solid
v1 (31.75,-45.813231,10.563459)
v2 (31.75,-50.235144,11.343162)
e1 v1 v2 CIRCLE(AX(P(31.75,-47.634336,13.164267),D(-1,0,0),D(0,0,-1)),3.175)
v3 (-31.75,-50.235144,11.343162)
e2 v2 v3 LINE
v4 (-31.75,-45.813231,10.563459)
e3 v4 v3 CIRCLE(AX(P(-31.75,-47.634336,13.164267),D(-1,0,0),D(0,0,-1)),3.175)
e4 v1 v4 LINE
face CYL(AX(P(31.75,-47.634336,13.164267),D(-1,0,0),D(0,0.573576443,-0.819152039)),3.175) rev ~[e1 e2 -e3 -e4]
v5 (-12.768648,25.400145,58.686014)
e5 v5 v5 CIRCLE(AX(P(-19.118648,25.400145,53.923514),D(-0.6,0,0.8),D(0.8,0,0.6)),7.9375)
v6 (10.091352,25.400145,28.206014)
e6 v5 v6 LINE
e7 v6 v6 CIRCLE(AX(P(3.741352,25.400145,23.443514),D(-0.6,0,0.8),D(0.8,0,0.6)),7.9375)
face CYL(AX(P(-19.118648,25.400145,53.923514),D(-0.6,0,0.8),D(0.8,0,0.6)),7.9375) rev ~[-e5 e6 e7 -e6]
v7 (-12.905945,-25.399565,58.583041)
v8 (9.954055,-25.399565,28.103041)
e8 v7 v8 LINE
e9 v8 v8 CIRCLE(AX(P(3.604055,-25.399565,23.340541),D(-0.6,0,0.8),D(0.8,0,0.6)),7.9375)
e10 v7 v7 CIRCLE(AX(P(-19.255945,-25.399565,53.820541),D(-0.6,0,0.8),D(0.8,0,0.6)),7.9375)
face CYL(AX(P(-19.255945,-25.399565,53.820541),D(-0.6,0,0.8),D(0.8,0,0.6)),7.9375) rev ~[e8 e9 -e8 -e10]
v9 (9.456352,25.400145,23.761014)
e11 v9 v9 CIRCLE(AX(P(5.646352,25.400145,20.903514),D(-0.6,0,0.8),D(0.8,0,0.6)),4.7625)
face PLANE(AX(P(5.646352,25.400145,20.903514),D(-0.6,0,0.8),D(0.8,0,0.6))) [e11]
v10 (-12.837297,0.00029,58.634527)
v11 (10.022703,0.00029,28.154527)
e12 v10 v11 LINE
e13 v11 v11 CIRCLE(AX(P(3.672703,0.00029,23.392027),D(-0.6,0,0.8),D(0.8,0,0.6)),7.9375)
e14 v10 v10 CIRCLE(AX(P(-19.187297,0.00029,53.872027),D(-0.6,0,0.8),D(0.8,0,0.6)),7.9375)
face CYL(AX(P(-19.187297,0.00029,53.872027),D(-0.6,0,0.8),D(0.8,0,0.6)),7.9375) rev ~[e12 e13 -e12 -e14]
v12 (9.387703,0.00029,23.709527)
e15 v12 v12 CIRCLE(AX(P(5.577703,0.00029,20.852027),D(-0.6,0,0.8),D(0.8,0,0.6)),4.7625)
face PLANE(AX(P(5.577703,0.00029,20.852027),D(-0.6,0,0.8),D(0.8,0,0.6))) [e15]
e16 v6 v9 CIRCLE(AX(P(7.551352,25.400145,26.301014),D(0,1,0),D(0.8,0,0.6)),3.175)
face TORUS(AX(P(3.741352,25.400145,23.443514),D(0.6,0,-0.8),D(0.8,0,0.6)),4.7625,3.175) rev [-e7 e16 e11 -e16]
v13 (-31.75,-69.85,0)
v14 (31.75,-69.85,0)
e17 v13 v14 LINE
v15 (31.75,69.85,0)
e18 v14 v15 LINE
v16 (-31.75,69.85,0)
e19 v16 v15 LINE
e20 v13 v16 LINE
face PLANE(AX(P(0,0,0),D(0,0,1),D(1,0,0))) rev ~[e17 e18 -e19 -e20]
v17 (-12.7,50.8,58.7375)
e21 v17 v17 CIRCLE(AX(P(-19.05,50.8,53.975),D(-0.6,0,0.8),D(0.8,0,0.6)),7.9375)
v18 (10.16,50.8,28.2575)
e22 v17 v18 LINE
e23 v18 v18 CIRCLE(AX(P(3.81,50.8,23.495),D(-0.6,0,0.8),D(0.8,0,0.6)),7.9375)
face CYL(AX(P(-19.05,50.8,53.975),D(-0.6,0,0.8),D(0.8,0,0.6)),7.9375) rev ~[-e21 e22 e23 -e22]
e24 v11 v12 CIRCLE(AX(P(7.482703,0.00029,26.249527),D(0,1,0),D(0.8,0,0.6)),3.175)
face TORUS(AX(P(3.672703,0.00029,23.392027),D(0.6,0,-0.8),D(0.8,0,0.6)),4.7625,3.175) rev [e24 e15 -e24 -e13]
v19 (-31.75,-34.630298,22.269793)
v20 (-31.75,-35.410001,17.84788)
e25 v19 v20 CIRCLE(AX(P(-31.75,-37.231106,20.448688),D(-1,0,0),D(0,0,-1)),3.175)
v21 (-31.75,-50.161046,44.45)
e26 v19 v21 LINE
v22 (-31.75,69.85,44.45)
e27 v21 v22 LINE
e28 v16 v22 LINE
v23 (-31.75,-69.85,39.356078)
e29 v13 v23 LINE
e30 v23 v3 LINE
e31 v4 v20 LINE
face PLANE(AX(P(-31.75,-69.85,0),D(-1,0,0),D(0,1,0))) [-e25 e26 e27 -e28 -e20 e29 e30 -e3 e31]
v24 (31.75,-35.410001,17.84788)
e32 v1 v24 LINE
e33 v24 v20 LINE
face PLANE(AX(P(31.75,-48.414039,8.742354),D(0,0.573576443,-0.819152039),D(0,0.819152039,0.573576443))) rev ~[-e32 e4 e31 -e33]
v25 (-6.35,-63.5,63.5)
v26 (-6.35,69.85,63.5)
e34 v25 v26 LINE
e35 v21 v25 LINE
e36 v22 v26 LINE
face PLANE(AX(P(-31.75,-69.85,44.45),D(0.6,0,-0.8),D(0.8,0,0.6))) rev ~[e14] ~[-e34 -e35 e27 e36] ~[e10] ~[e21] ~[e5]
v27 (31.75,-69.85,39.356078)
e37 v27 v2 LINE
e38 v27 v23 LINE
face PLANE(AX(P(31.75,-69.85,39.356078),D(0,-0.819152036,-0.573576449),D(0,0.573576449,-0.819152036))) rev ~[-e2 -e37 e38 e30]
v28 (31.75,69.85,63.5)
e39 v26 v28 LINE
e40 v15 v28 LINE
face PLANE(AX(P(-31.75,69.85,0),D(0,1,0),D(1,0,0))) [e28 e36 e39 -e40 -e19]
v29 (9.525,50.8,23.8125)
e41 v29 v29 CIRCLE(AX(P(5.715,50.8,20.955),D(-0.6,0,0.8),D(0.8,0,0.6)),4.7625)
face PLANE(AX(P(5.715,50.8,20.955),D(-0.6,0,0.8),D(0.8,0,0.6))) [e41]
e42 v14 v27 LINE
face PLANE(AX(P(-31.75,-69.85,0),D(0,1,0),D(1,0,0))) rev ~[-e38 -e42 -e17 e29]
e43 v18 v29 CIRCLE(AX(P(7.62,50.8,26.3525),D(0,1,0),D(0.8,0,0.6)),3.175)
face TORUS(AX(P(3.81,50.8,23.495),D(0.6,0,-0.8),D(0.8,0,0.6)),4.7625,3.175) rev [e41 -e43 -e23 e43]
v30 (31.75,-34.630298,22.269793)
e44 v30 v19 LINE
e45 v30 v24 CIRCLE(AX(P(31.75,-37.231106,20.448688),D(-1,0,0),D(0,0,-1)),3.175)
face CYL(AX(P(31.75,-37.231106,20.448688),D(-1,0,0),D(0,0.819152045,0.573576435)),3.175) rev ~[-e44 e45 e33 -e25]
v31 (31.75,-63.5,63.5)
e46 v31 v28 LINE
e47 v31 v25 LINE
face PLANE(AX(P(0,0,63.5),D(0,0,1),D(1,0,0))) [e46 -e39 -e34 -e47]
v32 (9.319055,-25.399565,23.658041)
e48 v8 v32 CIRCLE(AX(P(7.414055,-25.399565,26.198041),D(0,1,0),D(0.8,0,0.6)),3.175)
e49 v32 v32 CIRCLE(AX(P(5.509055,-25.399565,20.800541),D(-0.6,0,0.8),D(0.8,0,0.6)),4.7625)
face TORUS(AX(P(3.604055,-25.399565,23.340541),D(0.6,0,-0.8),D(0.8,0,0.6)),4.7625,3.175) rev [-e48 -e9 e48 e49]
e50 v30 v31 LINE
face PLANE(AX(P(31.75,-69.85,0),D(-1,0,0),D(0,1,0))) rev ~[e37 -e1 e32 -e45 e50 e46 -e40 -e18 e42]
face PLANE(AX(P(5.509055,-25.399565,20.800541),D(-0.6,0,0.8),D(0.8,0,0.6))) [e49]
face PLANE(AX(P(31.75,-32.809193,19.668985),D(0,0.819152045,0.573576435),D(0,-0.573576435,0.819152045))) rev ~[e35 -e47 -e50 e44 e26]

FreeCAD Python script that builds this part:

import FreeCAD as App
import Part
import Sketcher

V = App.Vector
Q = App.Units.Quantity


def edges_at(feature, points):
    """Names of the edges that pass closest to the given points."""
    edges = feature.Shape.Edges
    near = lambda p: min(range(len(edges)), key=lambda i: edges[i].distToShape(Part.Vertex(*p))[0])
    return sorted({f"Edge{near(p) + 1}" for p in points})

doc = App.newDocument("Part")
body = doc.addObject("PartDesign::Body", "Body")

# Sketch on XY plane
sketch1 = body.newObject("Sketcher::SketchObject", "Sketch")
sketch1.AttachmentSupport = (doc.getObject("XY_Plane"), [""])
sketch1.MapMode = "FlatFace"
sketch1.addGeometry(Part.LineSegment(V(-32, 70, 0), V(-32, -70, 0)), False)
sketch1.addGeometry(Part.LineSegment(V(-32, -70, 0), V(32, -70, 0)), False)
sketch1.addGeometry(Part.LineSegment(V(32, -70, 0), V(32, 70, 0)), False)
sketch1.addGeometry(Part.LineSegment(V(32, 70, 0), V(-32, 70, 0)), False)
sketch1.addConstraint(Sketcher.Constraint("Coincident", 0, 2, 1, 1))
sketch1.addConstraint(Sketcher.Constraint("Coincident", 1, 2, 2, 1))
sketch1.addConstraint(Sketcher.Constraint("Coincident", 2, 2, 3, 1))
sketch1.addConstraint(Sketcher.Constraint("Coincident", 3, 2, 0, 1))
sketch1.addConstraint(Sketcher.Constraint("Vertical", 0))
sketch1.addConstraint(Sketcher.Constraint("Horizontal", 1))
sketch1.addConstraint(Sketcher.Constraint("Vertical", 2))
sketch1.addConstraint(Sketcher.Constraint("Horizontal", 3))
sketch1.addConstraint(Sketcher.Constraint("Symmetric", 0, 2, 2, 2, -1, 1))
sketch1.addConstraint(Sketcher.Constraint("DistanceX", 1, 1, 1, 2, Q("2.5 in")))
sketch1.addConstraint(Sketcher.Constraint("DistanceY", 0, 2, 0, 1, Q("5.5 in")))
pad1 = body.newObject("PartDesign::Pad", "Pad")
pad1.Profile = sketch1
pad1.Length = Q("2.5 in")

# Sketch on XZ plane
sketch2 = body.newObject("Sketcher::SketchObject", "Sketch001")
sketch2.AttachmentSupport = (doc.getObject("XZ_Plane"), [""])
sketch2.MapMode = "FlatFace"
sketch2.AttachmentOffset = App.Placement(V(0, 0, 2.75 * 25.4), App.Rotation())
sketch2.addGeometry(Part.LineSegment(V(-32, 64, 0), V(-32, 44, 0)), False)
sketch2.addGeometry(Part.LineSegment(V(-32, 44, 0), V(-6, 64, 0)), False)
sketch2.addGeometry(Part.LineSegment(V(-6, 64, 0), V(-32, 64, 0)), False)
sketch2.addConstraint(Sketcher.Constraint("Coincident", 0, 2, 1, 1))
sketch2.addConstraint(Sketcher.Constraint("Coincident", 1, 2, 2, 1))
sketch2.addConstraint(Sketcher.Constraint("Coincident", 2, 2, 0, 1))
sketch2.addConstraint(Sketcher.Constraint("Vertical", 0))
sketch2.addConstraint(Sketcher.Constraint("Horizontal", 2))
sketch2.addConstraint(Sketcher.Constraint("DistanceX", 2, 2, 2, 1, Q("1 in")))
sketch2.addConstraint(Sketcher.Constraint("DistanceY", 0, 2, 0, 1, Q("0.75 in")))
sketch2.addConstraint(Sketcher.Constraint("DistanceY", -1, 1, 1, 2, Q("2.5 in")))
sketch2.addConstraint(Sketcher.Constraint("DistanceX", 0, 2, -1, 1, Q("1.25 in")))
pocket1 = body.newObject("PartDesign::Pocket", "Pocket")
pocket1.Profile = sketch2
pocket1.Type = "ThroughAll"

# Sketch on an angled plane
sketch3 = body.newObject("Sketcher::SketchObject", "Sketch002")
sketch3.Placement = App.Placement(V(-32.766, 0, 43.688), App.Rotation(V(0.8, 0, 0.6), V(0, 1, 0), V(-0.6, 0, 0.8), "ZXY"))
sketch3.addGeometry(Part.Circle(V(17, 51, 0), V(0, 0, 1), 8), False)
sketch3.addGeometry(Part.Circle(V(17, 25, 0), V(0, 0, 1), 8), False)
sketch3.addGeometry(Part.Circle(V(17, 0, 0), V(0, 0, 1), 8), False)
sketch3.addGeometry(Part.Circle(V(17, -25, 0), V(0, 0, 1), 8), False)
sketch3.addConstraint(Sketcher.Constraint("Equal", 0, 1))
sketch3.addConstraint(Sketcher.Constraint("Equal", 1, 2))
sketch3.addConstraint(Sketcher.Constraint("Equal", 2, 3))
sketch3.addConstraint(Sketcher.Constraint("Diameter", 0, Q("0.625 in")))
sketch3.addConstraint(Sketcher.Constraint("DistanceY", -1, 1, 0, 3, Q("2 in")))
sketch3.addConstraint(Sketcher.Constraint("DistanceX", -1, 1, 0, 3, Q("0.675 in")))
sketch3.addConstraint(Sketcher.Constraint("DistanceX", -1, 1, 1, 3, Q("17.05919 mm")))
sketch3.addConstraint(Sketcher.Constraint("DistanceX", -1, 1, 2, 3, Q("16.973379 mm")))
sketch3.addConstraint(Sketcher.Constraint("DistanceY", -1, 1, 2, 3, Q("0.00029 mm")))
sketch3.addConstraint(Sketcher.Constraint("DistanceX", -1, 1, 3, 3, Q("16.887569 mm")))
sketch3.addConstraint(Sketcher.Constraint("DistanceY", 3, 3, 1, 3, Q("50.79971 mm")))
sketch3.addConstraint(Sketcher.Constraint("DistanceY", -1, 1, 1, 3, Q("25.400145 mm")))
pocket2 = body.newObject("PartDesign::Pocket", "Pocket001")
pocket2.Profile = sketch3
pocket2.Length = Q("1.625 in")
doc.recompute()

fillet = body.newObject("PartDesign::Fillet", "Fillet")
fillet.Base = (pocket2, edges_at(pocket2, [
    (-0.841, -25.4, 16.038),
    (-0.772, 0, 16.09),
    (-0.704, 25.4, 16.141),
    (-0.635, 50.8, 16.192),
]))
fillet.Radius = Q("0.125 in")

# Sketch on YZ plane
sketch4 = body.newObject("Sketcher::SketchObject", "Sketch003")
sketch4.AttachmentSupport = (doc.getObject("YZ_Plane"), [""])
sketch4.MapMode = "FlatFace"
sketch4.AttachmentOffset = App.Placement(V(0, 0, 1.25 * 25.4), App.Rotation())
sketch4.addGeometry(Part.LineSegment(V(-70, 64, 0), V(-70, 39, 0)), False)
sketch4.addGeometry(Part.LineSegment(V(-70, 39, 0), V(-48, 9, 0)), False)
sketch4.addGeometry(Part.LineSegment(V(-48, 9, 0), V(-33, 20, 0)), False)
sketch4.addGeometry(Part.LineSegment(V(-33, 20, 0), V(-64, 64, 0)), False)
sketch4.addGeometry(Part.LineSegment(V(-64, 64, 0), V(-70, 64, 0)), False)
sketch4.addConstraint(Sketcher.Constraint("Coincident", 0, 2, 1, 1))
sketch4.addConstraint(Sketcher.Constraint("Coincident", 1, 2, 2, 1))
sketch4.addConstraint(Sketcher.Constraint("Coincident", 2, 2, 3, 1))
sketch4.addConstraint(Sketcher.Constraint("Coincident", 3, 2, 4, 1))
sketch4.addConstraint(Sketcher.Constraint("Coincident", 4, 2, 0, 1))
sketch4.addConstraint(Sketcher.Constraint("Vertical", 0))
sketch4.addConstraint(Sketcher.Constraint("Horizontal", 4))
sketch4.addConstraint(Sketcher.Constraint("Perpendicular", 1, 2))
sketch4.addConstraint(Sketcher.Constraint("Perpendicular", 2, 3))
sketch4.addConstraint(Sketcher.Constraint("Angle", 1, Q("-54.999999 deg")))
sketch4.addConstraint(Sketcher.Constraint("DistanceX", 4, 2, 4, 1, Q("0.25 in")))
sketch4.addConstraint(Sketcher.Constraint("DistanceX", 3, 2, -1, 1, Q("2.5 in")))
sketch4.addConstraint(Sketcher.Constraint("DistanceY", -1, 1, 3, 2, Q("2.5 in")))
sketch4.addConstraint(Sketcher.Constraint("Distance", 2, Q("0.75 in")))
sketch4.addConstraint(Sketcher.Constraint("Distance", 3, Q("53.507789 mm")))
pocket3 = body.newObject("PartDesign::Pocket", "Pocket002")
pocket3.Profile = sketch4
pocket3.Type = "ThroughAll"
doc.recompute()

fillet2 = body.newObject("PartDesign::Fillet", "Fillet001")
fillet2.Base = (pocket3, edges_at(pocket3, [(0, -32.809, 19.669), (0, -48.414, 8.742)]))
fillet2.Radius = Q("0.125 in")

doc.recompute()
